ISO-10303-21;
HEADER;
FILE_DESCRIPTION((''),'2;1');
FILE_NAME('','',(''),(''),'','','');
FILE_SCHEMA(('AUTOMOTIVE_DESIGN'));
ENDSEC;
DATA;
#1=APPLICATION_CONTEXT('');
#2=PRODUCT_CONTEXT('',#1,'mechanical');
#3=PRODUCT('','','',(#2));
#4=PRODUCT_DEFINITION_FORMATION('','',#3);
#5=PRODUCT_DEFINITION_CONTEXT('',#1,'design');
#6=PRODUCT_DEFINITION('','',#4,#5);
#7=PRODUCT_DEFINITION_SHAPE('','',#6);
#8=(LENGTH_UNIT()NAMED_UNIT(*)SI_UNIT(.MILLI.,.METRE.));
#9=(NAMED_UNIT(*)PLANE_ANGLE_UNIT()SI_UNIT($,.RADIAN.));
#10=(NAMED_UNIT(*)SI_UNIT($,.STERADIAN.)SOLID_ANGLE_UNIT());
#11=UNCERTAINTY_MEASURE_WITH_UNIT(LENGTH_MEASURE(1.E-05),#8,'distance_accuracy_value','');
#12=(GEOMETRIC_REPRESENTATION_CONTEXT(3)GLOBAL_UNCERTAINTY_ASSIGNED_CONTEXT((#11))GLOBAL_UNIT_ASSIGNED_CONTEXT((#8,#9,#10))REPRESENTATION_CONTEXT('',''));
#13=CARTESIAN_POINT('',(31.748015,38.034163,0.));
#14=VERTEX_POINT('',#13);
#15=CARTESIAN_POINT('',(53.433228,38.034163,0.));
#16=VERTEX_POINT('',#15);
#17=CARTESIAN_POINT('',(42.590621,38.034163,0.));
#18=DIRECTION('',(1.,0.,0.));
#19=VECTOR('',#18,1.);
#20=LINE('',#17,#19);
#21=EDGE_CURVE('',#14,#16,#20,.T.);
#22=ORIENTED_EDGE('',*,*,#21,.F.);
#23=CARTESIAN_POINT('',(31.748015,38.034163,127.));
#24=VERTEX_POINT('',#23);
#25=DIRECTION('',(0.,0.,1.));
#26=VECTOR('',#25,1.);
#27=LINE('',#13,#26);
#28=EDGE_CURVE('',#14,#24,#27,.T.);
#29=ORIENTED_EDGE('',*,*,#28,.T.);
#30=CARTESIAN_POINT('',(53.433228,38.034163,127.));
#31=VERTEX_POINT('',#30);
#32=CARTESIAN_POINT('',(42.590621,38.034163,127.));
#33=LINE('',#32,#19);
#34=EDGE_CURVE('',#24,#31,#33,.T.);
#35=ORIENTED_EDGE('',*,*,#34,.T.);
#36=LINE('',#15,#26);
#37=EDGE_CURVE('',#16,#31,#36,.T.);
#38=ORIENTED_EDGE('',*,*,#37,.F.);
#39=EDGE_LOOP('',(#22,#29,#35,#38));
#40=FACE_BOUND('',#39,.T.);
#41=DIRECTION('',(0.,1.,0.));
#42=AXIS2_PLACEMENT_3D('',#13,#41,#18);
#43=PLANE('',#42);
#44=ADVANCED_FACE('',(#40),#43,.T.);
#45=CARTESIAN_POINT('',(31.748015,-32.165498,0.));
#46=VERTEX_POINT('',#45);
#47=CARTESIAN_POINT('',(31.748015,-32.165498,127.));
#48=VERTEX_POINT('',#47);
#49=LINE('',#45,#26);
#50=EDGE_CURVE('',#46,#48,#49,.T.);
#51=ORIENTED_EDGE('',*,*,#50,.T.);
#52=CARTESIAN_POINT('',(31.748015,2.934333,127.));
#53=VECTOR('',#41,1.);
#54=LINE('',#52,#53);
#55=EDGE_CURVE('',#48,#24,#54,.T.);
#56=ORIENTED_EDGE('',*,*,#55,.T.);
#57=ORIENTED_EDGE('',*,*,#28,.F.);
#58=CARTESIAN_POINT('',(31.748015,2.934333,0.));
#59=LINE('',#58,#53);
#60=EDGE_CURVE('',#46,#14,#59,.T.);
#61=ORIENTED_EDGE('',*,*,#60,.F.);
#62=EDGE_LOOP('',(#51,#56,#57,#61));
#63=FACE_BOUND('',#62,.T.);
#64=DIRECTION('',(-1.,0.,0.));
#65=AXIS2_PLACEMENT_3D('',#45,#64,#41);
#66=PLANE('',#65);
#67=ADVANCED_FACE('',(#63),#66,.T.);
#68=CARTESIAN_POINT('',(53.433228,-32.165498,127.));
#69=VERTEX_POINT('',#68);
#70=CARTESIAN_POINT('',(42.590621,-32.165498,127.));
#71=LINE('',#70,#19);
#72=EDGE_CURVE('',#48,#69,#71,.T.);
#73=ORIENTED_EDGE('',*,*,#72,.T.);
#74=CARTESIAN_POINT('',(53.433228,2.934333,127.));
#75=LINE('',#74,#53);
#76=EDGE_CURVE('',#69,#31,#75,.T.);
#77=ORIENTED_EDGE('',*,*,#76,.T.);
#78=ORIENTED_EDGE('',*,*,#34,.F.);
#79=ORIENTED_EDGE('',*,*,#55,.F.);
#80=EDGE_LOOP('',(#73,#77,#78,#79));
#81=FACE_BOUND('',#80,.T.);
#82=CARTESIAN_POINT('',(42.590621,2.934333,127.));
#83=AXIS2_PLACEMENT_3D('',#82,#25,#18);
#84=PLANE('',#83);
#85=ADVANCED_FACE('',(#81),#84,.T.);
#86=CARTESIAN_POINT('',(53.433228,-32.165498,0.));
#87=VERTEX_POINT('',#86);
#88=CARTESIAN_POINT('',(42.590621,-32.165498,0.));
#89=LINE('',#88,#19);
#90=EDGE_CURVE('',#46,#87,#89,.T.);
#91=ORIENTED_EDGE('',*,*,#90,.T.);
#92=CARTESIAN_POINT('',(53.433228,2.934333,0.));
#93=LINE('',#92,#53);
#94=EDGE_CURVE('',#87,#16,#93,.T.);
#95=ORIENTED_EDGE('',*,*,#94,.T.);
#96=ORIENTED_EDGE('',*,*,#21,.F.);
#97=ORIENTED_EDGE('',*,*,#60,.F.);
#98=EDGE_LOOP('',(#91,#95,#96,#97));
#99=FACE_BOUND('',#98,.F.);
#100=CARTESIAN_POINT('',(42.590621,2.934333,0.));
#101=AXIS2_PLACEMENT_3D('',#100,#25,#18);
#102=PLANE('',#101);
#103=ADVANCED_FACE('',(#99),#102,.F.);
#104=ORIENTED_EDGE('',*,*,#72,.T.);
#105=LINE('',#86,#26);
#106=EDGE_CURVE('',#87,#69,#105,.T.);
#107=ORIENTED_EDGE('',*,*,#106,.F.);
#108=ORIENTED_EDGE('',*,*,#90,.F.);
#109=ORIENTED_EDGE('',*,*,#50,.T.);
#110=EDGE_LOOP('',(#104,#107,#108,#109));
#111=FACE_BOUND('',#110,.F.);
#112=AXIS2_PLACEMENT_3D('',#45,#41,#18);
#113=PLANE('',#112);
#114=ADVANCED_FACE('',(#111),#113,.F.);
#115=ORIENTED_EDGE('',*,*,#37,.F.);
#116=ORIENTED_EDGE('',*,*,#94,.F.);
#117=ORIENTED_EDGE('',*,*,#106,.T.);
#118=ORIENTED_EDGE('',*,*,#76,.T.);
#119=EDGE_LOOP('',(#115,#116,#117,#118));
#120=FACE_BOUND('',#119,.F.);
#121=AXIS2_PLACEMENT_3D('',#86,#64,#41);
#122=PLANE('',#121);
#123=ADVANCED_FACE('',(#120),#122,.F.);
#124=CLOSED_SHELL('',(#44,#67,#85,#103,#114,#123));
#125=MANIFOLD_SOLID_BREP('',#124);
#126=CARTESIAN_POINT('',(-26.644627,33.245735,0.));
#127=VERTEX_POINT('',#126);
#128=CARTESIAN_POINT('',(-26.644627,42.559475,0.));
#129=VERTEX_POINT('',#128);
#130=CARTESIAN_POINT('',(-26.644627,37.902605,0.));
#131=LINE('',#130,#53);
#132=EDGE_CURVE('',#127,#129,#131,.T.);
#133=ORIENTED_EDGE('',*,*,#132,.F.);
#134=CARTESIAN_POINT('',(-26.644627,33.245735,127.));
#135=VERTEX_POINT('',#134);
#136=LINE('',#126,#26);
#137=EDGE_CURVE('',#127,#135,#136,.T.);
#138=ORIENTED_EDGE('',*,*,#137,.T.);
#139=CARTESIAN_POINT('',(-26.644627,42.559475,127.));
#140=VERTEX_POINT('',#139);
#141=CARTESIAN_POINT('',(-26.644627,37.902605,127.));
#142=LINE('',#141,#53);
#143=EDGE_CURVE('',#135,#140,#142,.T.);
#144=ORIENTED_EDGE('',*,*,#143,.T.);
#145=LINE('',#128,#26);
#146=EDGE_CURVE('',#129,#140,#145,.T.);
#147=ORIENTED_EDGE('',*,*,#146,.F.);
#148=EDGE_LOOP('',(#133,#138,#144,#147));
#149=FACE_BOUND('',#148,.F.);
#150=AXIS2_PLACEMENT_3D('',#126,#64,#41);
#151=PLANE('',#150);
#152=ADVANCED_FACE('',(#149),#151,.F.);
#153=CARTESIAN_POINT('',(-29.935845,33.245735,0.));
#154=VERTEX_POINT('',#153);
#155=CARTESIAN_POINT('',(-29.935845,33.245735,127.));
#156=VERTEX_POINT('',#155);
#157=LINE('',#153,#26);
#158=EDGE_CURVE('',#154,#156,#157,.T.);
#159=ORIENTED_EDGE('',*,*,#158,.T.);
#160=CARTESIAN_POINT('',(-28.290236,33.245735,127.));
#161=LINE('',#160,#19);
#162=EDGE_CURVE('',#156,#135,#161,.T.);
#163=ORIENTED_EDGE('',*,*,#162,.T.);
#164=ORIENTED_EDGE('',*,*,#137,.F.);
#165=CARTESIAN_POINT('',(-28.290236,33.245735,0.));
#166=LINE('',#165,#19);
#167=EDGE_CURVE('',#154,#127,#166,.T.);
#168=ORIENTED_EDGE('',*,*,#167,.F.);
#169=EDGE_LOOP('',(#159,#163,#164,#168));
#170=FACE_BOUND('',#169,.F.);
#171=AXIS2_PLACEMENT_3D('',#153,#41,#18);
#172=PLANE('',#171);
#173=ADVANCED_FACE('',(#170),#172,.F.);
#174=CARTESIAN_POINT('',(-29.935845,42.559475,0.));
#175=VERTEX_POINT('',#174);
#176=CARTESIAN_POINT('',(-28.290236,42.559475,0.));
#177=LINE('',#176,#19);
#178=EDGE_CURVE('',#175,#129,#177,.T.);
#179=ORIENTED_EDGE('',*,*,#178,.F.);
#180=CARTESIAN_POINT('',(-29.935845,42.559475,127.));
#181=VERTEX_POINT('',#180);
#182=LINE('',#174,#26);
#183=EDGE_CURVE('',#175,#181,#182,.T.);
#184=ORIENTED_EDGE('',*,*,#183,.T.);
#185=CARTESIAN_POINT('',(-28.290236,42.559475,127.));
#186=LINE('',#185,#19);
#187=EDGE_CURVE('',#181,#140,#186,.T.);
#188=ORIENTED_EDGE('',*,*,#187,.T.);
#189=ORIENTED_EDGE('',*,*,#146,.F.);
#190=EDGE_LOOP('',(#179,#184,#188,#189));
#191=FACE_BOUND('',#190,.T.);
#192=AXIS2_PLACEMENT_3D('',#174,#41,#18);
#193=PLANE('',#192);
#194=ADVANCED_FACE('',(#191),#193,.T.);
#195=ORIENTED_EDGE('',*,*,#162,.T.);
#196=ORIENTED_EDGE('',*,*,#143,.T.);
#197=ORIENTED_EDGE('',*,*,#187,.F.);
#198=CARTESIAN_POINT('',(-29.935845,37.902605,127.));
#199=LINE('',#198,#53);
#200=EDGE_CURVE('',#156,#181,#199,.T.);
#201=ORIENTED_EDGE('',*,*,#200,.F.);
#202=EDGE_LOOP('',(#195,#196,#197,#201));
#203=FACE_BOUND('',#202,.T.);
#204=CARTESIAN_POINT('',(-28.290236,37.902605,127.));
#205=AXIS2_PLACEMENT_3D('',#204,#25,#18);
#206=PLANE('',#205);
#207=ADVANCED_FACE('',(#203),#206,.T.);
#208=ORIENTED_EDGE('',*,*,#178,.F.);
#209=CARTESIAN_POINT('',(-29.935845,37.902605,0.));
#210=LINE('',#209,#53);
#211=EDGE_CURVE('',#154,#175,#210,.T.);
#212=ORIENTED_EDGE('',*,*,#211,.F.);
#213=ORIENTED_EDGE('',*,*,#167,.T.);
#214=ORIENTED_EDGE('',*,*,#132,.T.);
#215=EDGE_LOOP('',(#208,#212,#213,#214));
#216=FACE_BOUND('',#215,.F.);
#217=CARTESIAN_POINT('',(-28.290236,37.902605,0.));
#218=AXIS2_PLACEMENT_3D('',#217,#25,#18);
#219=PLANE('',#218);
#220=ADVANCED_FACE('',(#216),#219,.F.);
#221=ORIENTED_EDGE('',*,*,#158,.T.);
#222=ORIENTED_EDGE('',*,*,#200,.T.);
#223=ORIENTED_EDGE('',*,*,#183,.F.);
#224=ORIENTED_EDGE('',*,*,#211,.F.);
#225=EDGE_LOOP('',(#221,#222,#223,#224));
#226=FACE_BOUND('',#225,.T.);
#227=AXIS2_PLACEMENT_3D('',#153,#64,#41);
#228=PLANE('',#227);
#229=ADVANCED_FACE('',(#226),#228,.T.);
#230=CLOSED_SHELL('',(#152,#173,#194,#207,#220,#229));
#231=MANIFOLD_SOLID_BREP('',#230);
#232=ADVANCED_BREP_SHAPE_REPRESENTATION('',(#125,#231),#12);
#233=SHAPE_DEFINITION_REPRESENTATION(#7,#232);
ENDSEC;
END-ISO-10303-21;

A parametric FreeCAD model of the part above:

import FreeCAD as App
import Part
import Sketcher
from FreeCAD import Vector
Q = App.Units.Quantity


def add_polygon(sketch, points):
    """Adds a closed chain of lines whose ends are joined by coincident constraints."""
    first, n = sketch.GeometryCount, len(points)
    for a, b in zip(points, points[1:] + points[:1]):
        sketch.addGeometry(Part.LineSegment(App.Vector(*a, 0), App.Vector(*b, 0)), False)
    for i in range(n):
        sketch.addConstraint(Sketcher.Constraint("Coincident", first + i, 2, first + (i + 1) % n, 1))

doc = App.newDocument("Part")
body = doc.addObject("PartDesign::Body", "Body")
body.AllowCompound = True

# Sketch on XY plane
sketch1 = body.newObject("Sketcher::SketchObject", "Sketch")
sketch1.AttachmentSupport = (doc.getObject("XY_Plane"), [""])
sketch1.MapMode = "FlatFace"
add_polygon(sketch1, [(-29.9, 42.6), (-29.9, 33.2), (-26.6, 33.2), (-26.6, 42.6)])  # lines 0-3
add_polygon(sketch1, [(31.7, 38), (31.7, -32.2), (53.4, -32.2), (53.4, 38)])  # lines 4-7
sketch1.addConstraint(Sketcher.Constraint("Vertical", 0))
sketch1.addConstraint(Sketcher.Constraint("Horizontal", 1))
sketch1.addConstraint(Sketcher.Constraint("Vertical", 2))
sketch1.addConstraint(Sketcher.Constraint("Horizontal", 3))
sketch1.addConstraint(Sketcher.Constraint("Vertical", 4))
sketch1.addConstraint(Sketcher.Constraint("Horizontal", 5))
sketch1.addConstraint(Sketcher.Constraint("Vertical", 6))
sketch1.addConstraint(Sketcher.Constraint("Horizontal", 7))
sketch1.addConstraint(Sketcher.Constraint("DistanceY", 0, 2, 0, 1, 9.31374))
sketch1.addConstraint(Sketcher.Constraint("DistanceY", 4, 2, 4, 1, 70.199661))
sketch1.addConstraint(Sketcher.Constraint("DistanceX", 1, 1, 1, 2, 3.291217))
sketch1.addConstraint(Sketcher.Constraint("DistanceX", 5, 1, 5, 2, 21.685213))
sketch1.addConstraint(Sketcher.Constraint("DistanceX", 1, 2, 4, 2, 58.392642))
sketch1.addConstraint(Sketcher.Constraint("DistanceY", 6, 2, 2, 2, 4.525312))
sketch1.addConstraint(Sketcher.Constraint("DistanceX", 0, 2, -1, 1, 29.935845))
sketch1.addConstraint(Sketcher.Constraint("DistanceY", -1, 1, 0, 2, 33.245735))
pad1 = body.newObject("PartDesign::Pad", "Pad")
pad1.Profile = sketch1
pad1.Length = Q("5 in")

doc.recompute()
